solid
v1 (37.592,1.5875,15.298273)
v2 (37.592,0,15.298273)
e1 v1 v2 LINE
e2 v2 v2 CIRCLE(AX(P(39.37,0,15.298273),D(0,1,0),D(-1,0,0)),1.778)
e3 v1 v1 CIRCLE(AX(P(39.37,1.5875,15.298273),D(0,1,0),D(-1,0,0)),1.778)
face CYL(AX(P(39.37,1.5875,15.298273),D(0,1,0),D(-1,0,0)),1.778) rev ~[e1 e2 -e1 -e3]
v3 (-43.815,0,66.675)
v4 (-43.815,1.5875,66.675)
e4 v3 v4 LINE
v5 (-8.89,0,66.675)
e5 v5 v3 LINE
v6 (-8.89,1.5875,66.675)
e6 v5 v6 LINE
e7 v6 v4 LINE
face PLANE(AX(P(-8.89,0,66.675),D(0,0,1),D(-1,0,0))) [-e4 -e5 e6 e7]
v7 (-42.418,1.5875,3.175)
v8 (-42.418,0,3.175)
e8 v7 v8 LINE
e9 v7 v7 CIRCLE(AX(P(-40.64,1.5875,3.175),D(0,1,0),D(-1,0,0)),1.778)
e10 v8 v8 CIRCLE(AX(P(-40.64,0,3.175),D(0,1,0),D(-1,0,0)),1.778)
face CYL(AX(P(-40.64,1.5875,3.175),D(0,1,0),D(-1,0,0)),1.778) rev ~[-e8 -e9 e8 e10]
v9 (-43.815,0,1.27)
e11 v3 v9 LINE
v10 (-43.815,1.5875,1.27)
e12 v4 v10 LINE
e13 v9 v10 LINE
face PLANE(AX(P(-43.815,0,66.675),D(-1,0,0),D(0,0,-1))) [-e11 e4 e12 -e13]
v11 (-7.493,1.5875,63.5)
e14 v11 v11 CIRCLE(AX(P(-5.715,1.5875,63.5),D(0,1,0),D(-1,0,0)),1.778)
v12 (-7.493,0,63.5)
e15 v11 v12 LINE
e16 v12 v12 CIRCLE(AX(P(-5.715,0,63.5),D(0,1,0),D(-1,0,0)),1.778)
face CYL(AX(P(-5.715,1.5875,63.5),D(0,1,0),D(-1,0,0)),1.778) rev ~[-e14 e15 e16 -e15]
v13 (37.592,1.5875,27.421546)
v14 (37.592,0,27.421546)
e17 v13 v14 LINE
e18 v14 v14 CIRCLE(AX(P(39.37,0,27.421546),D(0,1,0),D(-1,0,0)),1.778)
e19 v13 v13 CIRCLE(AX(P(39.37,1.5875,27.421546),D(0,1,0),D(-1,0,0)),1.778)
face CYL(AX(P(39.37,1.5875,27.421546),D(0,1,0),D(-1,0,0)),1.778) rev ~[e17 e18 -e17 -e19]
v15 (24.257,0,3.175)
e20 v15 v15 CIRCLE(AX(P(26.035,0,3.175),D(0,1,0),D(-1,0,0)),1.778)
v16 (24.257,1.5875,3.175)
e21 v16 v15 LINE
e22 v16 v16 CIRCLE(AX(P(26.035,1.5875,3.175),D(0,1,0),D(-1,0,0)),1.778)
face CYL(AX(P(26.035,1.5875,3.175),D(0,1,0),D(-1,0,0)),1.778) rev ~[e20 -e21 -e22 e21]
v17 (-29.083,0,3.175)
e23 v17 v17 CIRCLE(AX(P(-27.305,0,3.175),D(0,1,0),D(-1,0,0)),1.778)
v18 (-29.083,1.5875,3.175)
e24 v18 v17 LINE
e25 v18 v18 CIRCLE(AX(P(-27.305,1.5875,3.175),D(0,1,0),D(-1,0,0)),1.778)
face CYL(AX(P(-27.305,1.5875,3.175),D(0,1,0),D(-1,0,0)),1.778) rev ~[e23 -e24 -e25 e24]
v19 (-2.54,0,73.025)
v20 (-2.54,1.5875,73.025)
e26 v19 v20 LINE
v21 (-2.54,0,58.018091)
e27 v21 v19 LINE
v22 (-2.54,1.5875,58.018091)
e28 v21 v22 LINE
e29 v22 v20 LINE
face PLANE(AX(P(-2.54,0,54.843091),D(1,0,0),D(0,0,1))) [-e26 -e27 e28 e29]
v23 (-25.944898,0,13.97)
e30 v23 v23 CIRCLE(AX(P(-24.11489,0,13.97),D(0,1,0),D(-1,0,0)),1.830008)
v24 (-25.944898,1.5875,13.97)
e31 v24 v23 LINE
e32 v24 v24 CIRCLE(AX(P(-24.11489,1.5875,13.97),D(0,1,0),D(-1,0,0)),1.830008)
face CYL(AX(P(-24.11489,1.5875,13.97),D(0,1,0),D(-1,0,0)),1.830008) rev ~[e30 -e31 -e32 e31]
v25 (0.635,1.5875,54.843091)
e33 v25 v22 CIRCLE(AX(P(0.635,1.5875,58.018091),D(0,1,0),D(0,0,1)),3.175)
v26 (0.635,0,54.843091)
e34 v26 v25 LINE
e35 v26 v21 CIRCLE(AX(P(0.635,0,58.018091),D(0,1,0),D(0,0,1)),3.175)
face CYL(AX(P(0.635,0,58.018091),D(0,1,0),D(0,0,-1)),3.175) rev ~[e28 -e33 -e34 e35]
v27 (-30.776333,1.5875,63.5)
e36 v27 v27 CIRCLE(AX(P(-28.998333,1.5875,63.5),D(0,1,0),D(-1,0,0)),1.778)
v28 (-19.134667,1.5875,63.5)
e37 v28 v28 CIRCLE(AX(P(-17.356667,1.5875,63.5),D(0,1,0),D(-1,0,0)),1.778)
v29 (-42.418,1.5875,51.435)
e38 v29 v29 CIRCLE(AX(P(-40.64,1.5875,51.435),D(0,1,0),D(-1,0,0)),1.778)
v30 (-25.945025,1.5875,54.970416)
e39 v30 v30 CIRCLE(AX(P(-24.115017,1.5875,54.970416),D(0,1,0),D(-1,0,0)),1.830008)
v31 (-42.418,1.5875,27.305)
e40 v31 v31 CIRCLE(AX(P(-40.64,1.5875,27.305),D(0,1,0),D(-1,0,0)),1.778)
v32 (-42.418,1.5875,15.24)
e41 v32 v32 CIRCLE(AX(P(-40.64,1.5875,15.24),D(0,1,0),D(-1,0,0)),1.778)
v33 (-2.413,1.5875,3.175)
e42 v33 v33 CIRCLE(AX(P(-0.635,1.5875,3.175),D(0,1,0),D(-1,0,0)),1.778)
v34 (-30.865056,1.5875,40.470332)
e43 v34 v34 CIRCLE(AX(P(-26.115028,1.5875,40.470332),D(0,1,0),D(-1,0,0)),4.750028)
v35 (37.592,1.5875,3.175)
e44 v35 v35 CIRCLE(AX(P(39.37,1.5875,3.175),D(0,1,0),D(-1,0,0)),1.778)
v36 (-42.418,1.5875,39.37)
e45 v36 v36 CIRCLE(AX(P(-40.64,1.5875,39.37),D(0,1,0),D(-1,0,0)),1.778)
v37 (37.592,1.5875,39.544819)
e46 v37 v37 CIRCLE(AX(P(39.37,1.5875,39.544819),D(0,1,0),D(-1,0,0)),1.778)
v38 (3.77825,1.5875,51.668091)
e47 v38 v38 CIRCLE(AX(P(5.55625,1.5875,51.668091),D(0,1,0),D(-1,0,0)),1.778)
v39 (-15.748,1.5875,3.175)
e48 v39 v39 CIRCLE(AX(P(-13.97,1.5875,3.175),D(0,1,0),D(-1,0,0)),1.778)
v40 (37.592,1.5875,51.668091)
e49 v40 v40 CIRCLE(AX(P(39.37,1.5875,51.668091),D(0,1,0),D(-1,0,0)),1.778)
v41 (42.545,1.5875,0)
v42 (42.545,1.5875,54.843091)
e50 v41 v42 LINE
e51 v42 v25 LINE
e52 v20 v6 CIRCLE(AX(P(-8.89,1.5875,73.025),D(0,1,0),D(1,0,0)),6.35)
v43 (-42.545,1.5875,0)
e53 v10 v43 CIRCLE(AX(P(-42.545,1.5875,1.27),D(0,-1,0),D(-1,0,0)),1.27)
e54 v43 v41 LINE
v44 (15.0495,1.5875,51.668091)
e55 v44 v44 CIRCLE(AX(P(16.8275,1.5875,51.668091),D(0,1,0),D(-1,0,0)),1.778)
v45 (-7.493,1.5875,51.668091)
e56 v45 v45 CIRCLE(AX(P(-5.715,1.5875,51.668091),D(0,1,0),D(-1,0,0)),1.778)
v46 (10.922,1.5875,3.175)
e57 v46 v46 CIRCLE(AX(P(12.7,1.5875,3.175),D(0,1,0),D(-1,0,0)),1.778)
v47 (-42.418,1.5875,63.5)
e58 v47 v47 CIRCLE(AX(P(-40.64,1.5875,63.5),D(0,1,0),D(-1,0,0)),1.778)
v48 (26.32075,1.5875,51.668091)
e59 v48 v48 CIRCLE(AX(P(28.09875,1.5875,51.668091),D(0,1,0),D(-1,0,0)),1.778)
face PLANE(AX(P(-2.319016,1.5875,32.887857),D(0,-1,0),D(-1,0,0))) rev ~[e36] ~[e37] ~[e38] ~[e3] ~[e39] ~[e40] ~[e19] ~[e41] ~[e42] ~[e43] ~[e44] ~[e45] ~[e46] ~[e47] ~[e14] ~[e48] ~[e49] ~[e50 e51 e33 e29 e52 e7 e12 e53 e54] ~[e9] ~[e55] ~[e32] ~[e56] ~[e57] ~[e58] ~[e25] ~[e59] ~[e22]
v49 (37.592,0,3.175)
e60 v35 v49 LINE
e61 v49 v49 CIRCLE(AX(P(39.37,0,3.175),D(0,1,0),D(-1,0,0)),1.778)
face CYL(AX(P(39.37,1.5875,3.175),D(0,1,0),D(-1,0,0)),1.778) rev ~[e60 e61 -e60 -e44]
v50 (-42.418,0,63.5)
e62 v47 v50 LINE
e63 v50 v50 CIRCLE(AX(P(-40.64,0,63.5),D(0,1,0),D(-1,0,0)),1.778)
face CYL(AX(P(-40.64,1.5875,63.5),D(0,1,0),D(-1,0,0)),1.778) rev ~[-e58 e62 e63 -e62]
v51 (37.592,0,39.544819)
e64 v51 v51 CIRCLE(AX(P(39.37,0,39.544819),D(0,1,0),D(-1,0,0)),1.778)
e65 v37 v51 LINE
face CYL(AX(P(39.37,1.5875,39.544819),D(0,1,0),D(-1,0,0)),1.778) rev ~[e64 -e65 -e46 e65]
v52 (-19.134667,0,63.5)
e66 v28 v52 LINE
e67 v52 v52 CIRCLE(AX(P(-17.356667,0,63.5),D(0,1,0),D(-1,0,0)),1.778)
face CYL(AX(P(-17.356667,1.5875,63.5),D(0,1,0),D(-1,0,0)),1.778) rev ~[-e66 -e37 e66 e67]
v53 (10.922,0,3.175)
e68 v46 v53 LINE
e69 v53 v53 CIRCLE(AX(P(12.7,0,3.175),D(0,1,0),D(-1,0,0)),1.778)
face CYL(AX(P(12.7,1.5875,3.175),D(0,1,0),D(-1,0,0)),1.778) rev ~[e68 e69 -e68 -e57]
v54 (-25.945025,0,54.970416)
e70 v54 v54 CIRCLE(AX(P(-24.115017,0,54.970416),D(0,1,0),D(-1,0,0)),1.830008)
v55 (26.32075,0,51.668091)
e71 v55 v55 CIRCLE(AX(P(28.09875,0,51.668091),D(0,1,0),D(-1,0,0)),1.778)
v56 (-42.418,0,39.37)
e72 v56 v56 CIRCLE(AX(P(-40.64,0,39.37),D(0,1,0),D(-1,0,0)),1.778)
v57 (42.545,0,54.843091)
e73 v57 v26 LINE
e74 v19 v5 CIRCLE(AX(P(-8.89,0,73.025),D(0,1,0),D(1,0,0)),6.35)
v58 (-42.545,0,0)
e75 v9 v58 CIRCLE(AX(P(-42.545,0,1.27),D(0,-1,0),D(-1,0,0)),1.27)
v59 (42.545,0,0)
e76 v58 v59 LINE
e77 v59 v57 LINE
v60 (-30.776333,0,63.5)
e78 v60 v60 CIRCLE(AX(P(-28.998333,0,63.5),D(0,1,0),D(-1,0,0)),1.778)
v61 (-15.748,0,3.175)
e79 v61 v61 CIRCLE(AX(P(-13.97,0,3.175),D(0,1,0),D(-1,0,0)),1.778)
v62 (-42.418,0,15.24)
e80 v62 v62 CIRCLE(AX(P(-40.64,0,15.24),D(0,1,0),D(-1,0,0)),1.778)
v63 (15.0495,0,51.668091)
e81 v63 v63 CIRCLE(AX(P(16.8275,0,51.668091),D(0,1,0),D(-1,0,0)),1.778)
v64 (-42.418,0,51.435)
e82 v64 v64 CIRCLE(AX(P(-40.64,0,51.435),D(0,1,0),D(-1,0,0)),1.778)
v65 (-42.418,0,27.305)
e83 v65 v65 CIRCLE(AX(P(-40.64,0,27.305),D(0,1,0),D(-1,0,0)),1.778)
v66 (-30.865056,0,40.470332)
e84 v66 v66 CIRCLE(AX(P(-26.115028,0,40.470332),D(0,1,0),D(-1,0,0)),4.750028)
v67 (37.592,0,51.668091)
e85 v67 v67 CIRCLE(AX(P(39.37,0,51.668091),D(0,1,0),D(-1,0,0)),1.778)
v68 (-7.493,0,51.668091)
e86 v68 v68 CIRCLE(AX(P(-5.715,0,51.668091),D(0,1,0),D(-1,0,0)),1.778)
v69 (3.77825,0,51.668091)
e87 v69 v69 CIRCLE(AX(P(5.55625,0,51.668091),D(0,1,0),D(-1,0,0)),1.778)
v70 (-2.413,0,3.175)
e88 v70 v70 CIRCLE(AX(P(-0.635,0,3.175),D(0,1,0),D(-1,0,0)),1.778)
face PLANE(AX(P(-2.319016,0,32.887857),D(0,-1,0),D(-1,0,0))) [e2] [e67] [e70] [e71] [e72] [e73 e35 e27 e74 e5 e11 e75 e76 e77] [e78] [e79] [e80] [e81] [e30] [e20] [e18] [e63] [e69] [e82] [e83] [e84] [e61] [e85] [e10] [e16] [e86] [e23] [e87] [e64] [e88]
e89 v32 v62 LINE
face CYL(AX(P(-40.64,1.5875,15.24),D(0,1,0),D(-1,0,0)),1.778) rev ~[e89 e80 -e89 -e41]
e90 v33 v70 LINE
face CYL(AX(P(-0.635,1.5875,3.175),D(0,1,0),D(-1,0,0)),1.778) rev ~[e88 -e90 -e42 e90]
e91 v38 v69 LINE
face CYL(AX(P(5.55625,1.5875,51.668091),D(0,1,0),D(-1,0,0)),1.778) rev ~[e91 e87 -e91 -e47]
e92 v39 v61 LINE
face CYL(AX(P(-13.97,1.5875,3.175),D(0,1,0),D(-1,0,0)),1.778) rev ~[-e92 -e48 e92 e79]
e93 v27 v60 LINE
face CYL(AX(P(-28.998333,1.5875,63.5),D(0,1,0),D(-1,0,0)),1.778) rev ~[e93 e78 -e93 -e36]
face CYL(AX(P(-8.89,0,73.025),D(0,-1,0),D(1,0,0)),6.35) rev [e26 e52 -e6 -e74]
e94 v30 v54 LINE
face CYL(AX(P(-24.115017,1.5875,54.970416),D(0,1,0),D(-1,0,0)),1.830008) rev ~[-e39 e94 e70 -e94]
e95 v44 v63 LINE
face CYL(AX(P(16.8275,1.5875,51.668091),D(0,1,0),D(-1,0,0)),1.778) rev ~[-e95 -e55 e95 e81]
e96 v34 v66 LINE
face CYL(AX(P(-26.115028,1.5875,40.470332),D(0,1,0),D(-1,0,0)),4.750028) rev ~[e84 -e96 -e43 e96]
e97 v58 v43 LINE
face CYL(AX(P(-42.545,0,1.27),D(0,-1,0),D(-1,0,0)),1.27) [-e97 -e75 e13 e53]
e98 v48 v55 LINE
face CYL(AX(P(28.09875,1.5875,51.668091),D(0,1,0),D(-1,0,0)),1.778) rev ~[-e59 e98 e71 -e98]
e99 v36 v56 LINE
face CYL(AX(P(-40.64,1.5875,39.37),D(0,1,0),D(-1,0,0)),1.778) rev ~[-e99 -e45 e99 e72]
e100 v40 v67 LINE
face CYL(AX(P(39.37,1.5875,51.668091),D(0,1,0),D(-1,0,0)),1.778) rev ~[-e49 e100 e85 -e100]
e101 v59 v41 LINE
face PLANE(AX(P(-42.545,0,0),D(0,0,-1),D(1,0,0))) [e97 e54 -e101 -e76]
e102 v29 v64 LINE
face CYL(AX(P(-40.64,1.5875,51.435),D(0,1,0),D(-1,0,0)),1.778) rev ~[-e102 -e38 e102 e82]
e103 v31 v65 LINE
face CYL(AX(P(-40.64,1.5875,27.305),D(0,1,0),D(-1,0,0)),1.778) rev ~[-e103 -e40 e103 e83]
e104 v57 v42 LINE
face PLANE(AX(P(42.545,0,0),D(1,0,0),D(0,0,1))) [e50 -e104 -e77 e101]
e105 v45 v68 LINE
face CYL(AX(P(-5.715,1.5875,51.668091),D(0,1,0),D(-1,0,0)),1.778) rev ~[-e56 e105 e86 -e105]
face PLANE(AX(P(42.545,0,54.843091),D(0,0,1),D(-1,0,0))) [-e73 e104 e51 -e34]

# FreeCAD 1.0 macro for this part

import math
import FreeCAD as App
import Part
import Sketcher
Q = App.Units.Quantity


def edges_at(feature, points):
    """Names of the edges that pass closest to the given points."""
    edges = feature.Shape.Edges
    near = lambda p: min(range(len(edges)), key=lambda i: edges[i].distToShape(Part.Vertex(*p))[0])
    return sorted({f"Edge{near(p) + 1}" for p in points})

doc = App.newDocument("Part")
body = doc.addObject("PartDesign::Body", "Body")

# Sketch on XZ plane
sketch1 = body.newObject("Sketcher::SketchObject", "Sketch")
sketch1.AttachmentSupport = (doc.getObject("XZ_Plane"), [""])
sketch1.MapMode = "FlatFace"
sketch1.addGeometry(Part.LineSegment(App.Vector(-43.815, 66.675, 0), App.Vector(-8.89, 66.675, 0)), False)
sketch1.addGeometry(Part.ArcOfCircle(Part.Circle(App.Vector(-8.89, 73.025, 0), App.Vector(0, 0, 1), 6.35), math.radians(-90), math.radians(0)), False)
sketch1.addGeometry(Part.LineSegment(App.Vector(-2.54, 73.025, 0), App.Vector(-2.54, 54.843091, 0)), False)
sketch1.addGeometry(Part.LineSegment(App.Vector(-2.54, 54.843091, 0), App.Vector(42.545, 54.843091, 0)), False)
sketch1.addGeometry(Part.LineSegment(App.Vector(42.545, 54.843091, 0), App.Vector(42.545, 0, 0)), False)
sketch1.addGeometry(Part.LineSegment(App.Vector(42.545, 0, 0), App.Vector(-42.545, 0, 0)), False)
sketch1.addGeometry(Part.ArcOfCircle(Part.Circle(App.Vector(-42.545, 1.27, 0), App.Vector(0, 0, 1), 1.27), math.radians(180), math.radians(270)), False)
sketch1.addGeometry(Part.LineSegment(App.Vector(-43.815, 1.27, 0), App.Vector(-43.815, 66.675, 0)), False)
sketch1.addConstraint(Sketcher.Constraint("Tangent", 0, 2, 1, 1))
sketch1.addConstraint(Sketcher.Constraint("Tangent", 1, 2, 2, 1))
sketch1.addConstraint(Sketcher.Constraint("Coincident", 2, 2, 3, 1))
sketch1.addConstraint(Sketcher.Constraint("Coincident", 3, 2, 4, 1))
sketch1.addConstraint(Sketcher.Constraint("Coincident", 4, 2, 5, 1))
sketch1.addConstraint(Sketcher.Constraint("Tangent", 5, 2, 6, 2))
sketch1.addConstraint(Sketcher.Constraint("Tangent", 6, 1, 7, 1))
sketch1.addConstraint(Sketcher.Constraint("Coincident", 7, 2, 0, 1))
sketch1.addConstraint(Sketcher.Constraint("Horizontal", 0))
sketch1.addConstraint(Sketcher.Constraint("Vertical", 2))
sketch1.addConstraint(Sketcher.Constraint("Horizontal", 3))
sketch1.addConstraint(Sketcher.Constraint("Vertical", 4))
sketch1.addConstraint(Sketcher.Constraint("Horizontal", 5))
sketch1.addConstraint(Sketcher.Constraint("Vertical", 7))
sketch1.addConstraint(Sketcher.Constraint("Symmetric", 4, 2, 5, 2, -1, 1))
sketch1.addConstraint(Sketcher.Constraint("Radius", 1, Q("0.25 in")))
sketch1.addConstraint(Sketcher.Constraint("Radius", 6, Q("0.05 in")))
sketch1.addConstraint(Sketcher.Constraint("DistanceX", 5, 2, 5, 1, Q("3.35 in")))
sketch1.addConstraint(Sketcher.Constraint("DistanceX", 1, 2, -1, 1, Q("0.1 in")))
sketch1.addConstraint(Sketcher.Constraint("DistanceY", 7, 1, 7, 2, Q("2.575 in")))
sketch1.addConstraint(Sketcher.Constraint("DistanceY", 2, 2, 2, 1, Q("18.181909 mm")))
pad1 = body.newObject("PartDesign::Pad", "Pad")
pad1.Profile = sketch1
pad1.Length = Q("0.0625 in")
pad1.Reversed = True
doc.recompute()

fillet = body.newObject("PartDesign::Fillet", "Fillet")
fillet.Base = (pad1, edges_at(pad1, [(-2.54, 0.794, 54.843)]))
fillet.Radius = Q("0.125 in")

# Sketch on XZ plane
sketch2 = body.newObject("Sketcher::SketchObject", "Sketch001")
sketch2.AttachmentSupport = (doc.getObject("XZ_Plane"), [""])
sketch2.MapMode = "FlatFace"
sketch2.AttachmentOffset = App.Placement(App.Vector(0, 0, -0.0625 * 25.4), App.Rotation())
sketch2.addGeometry(Part.Circle(App.Vector(-26.115028, 40.470332, 0), App.Vector(0, 0, 1), 4.750028), False)
sketch2.addGeometry(Part.Circle(App.Vector(-24.115017, 54.970416, 0), App.Vector(0, 0, 1), 1.830008), False)
sketch2.addGeometry(Part.Circle(App.Vector(-24.11489, 13.97, 0), App.Vector(0, 0, 1), 1.830008), False)
sketch2.addConstraint(Sketcher.Constraint("Equal", 1, 2))
sketch2.addConstraint(Sketcher.Constraint("DistanceY", -1, 1, 2, 3, Q("0.55 in")))
sketch2.addConstraint(Sketcher.Constraint("Diameter", 0, Q("9.500055 mm")))
sketch2.addConstraint(Sketcher.Constraint("Diameter", 1, Q("3.660016 mm")))
sketch2.addConstraint(Sketcher.Constraint("DistanceX", 0, 3, -1, 1, Q("26.115028 mm")))
sketch2.addConstraint(Sketcher.Constraint("DistanceY", -1, 1, 0, 3, Q("40.470332 mm")))
sketch2.addConstraint(Sketcher.Constraint("DistanceX", 2, 3, -1, 1, Q("24.11489 mm")))
sketch2.addConstraint(Sketcher.Constraint("DistanceX", 0, 3, 1, 3, Q("2.000012 mm")))
sketch2.addConstraint(Sketcher.Constraint("DistanceY", -1, 1, 1, 3, Q("54.970416 mm")))
pocket1 = body.newObject("PartDesign::Pocket", "Pocket")
pocket1.Profile = sketch2
pocket1.Type = "ThroughAll"
pocket1.Midplane = True

# Sketch on XZ plane
sketch3 = body.newObject("Sketcher::SketchObject", "Sketch002")
sketch3.AttachmentSupport = (doc.getObject("XZ_Plane"), [""])
sketch3.MapMode = "FlatFace"
sketch3.AttachmentOffset = App.Placement(App.Vector(0, 0, -0.0625 * 25.4), App.Rotation())
sketch3.addGeometry(Part.Circle(App.Vector(-27.305, 3.175, 0), App.Vector(0, 0, 1), 1.778), False)
sketch3.addGeometry(Part.Circle(App.Vector(-13.97, 3.175, 0), App.Vector(0, 0, 1), 1.778), False)
sketch3.addGeometry(Part.Circle(App.Vector(-0.635, 3.175, 0), App.Vector(0, 0, 1), 1.778), False)
sketch3.addGeometry(Part.Circle(App.Vector(12.7, 3.175, 0), App.Vector(0, 0, 1), 1.778), False)
sketch3.addGeometry(Part.Circle(App.Vector(26.035, 3.175, 0), App.Vector(0, 0, 1), 1.778), False)
sketch3.addGeometry(Part.Circle(App.Vector(39.37, 3.175, 0), App.Vector(0, 0, 1), 1.778), False)
sketch3.addGeometry(Part.Circle(App.Vector(39.37, 15.298273, 0), App.Vector(0, 0, 1), 1.778), False)
sketch3.addGeometry(Part.Circle(App.Vector(39.37, 27.421546, 0), App.Vector(0, 0, 1), 1.778), False)
sketch3.addGeometry(Part.Circle(App.Vector(39.37, 39.544819, 0), App.Vector(0, 0, 1), 1.778), False)
sketch3.addGeometry(Part.Circle(App.Vector(39.37, 51.668091, 0), App.Vector(0, 0, 1), 1.778), False)
sketch3.addGeometry(Part.Circle(App.Vector(28.09875, 51.668091, 0), App.Vector(0, 0, 1), 1.778), False)
sketch3.addGeometry(Part.Circle(App.Vector(16.8275, 51.668091, 0), App.Vector(0, 0, 1), 1.778), False)
sketch3.addGeometry(Part.Circle(App.Vector(5.55625, 51.668091, 0), App.Vector(0, 0, 1), 1.778), False)
sketch3.addGeometry(Part.Circle(App.Vector(-5.715, 51.668091, 0), App.Vector(0, 0, 1), 1.778), False)
sketch3.addGeometry(Part.Circle(App.Vector(-5.715, 63.5, 0), App.Vector(0, 0, 1), 1.778), False)
sketch3.addGeometry(Part.Circle(App.Vector(-17.356667, 63.5, 0), App.Vector(0, 0, 1), 1.778), False)
sketch3.addGeometry(Part.Circle(App.Vector(-28.998333, 63.5, 0), App.Vector(0, 0, 1), 1.778), False)
sketch3.addGeometry(Part.Circle(App.Vector(-40.64, 63.5, 0), App.Vector(0, 0, 1), 1.778), False)
sketch3.addGeometry(Part.Circle(App.Vector(-40.64, 51.435, 0), App.Vector(0, 0, 1), 1.778), False)
sketch3.addGeometry(Part.Circle(App.Vector(-40.64, 39.37, 0), App.Vector(0, 0, 1), 1.778), False)
sketch3.addGeometry(Part.Circle(App.Vector(-40.64, 27.305, 0), App.Vector(0, 0, 1), 1.778), False)
sketch3.addGeometry(Part.Circle(App.Vector(-40.64, 15.24, 0), App.Vector(0, 0, 1), 1.778), False)
sketch3.addGeometry(Part.Circle(App.Vector(-40.64, 3.175, 0), App.Vector(0, 0, 1), 1.778), False)
sketch3.addConstraint(Sketcher.Constraint("Equal", 0, 1))
sketch3.addConstraint(Sketcher.Constraint("Equal", 1, 2))
sketch3.addConstraint(Sketcher.Constraint("Equal", 2, 3))
sketch3.addConstraint(Sketcher.Constraint("Equal", 3, 4))
sketch3.addConstraint(Sketcher.Constraint("Equal", 4, 5))
sketch3.addConstraint(Sketcher.Constraint("Equal", 5, 6))
sketch3.addConstraint(Sketcher.Constraint("Equal", 6, 7))
sketch3.addConstraint(Sketcher.Constraint("Equal", 7, 8))
sketch3.addConstraint(Sketcher.Constraint("Equal", 8, 9))
sketch3.addConstraint(Sketcher.Constraint("Equal", 9, 10))
sketch3.addConstraint(Sketcher.Constraint("Equal", 10, 11))
sketch3.addConstraint(Sketcher.Constraint("Equal", 11, 12))
sketch3.addConstraint(Sketcher.Constraint("Equal", 12, 13))
sketch3.addConstraint(Sketcher.Constraint("Equal", 13, 14))
sketch3.addConstraint(Sketcher.Constraint("Equal", 14, 15))
sketch3.addConstraint(Sketcher.Constraint("Equal", 15, 16))
sketch3.addConstraint(Sketcher.Constraint("Equal", 16, 17))
sketch3.addConstraint(Sketcher.Constraint("Equal", 17, 18))
sketch3.addConstraint(Sketcher.Constraint("Equal", 18, 19))
sketch3.addConstraint(Sketcher.Constraint("Equal", 19, 20))
sketch3.addConstraint(Sketcher.Constraint("Equal", 20, 21))
sketch3.addConstraint(Sketcher.Constraint("Equal", 21, 22))
sketch3.addConstraint(Sketcher.Constraint("Horizontal", 0, 3, 1, 3))
sketch3.addConstraint(Sketcher.Constraint("Horizontal", 1, 3, 2, 3))
sketch3.addConstraint(Sketcher.Constraint("Horizontal", 2, 3, 3, 3))
sketch3.addConstraint(Sketcher.Constraint("Horizontal", 3, 3, 4, 3))
sketch3.addConstraint(Sketcher.Constraint("Horizontal", 4, 3, 5, 3))
sketch3.addConstraint(Sketcher.Constraint("Horizontal", 9, 3, 10, 3))
sketch3.addConstraint(Sketcher.Constraint("Horizontal", 10, 3, 11, 3))
sketch3.addConstraint(Sketcher.Constraint("Horizontal", 11, 3, 12, 3))
sketch3.addConstraint(Sketcher.Constraint("Horizontal", 12, 3, 13, 3))
sketch3.addConstraint(Sketcher.Constraint("Horizontal", 14, 3, 15, 3))
sketch3.addConstraint(Sketcher.Constraint("Horizontal", 15, 3, 16, 3))
sketch3.addConstraint(Sketcher.Constraint("Horizontal", 16, 3, 17, 3))
sketch3.addConstraint(Sketcher.Constraint("Horizontal", 5, 3, 22, 3))
sketch3.addConstraint(Sketcher.Constraint("Vertical", 5, 3, 6, 3))
sketch3.addConstraint(Sketcher.Constraint("Vertical", 6, 3, 7, 3))
sketch3.addConstraint(Sketcher.Constraint("Vertical", 7, 3, 8, 3))
sketch3.addConstraint(Sketcher.Constraint("Vertical", 8, 3, 9, 3))
sketch3.addConstraint(Sketcher.Constraint("Vertical", 13, 3, 14, 3))
sketch3.addConstraint(Sketcher.Constraint("Vertical", 17, 3, 18, 3))
sketch3.addConstraint(Sketcher.Constraint("Vertical", 18, 3, 19, 3))
sketch3.addConstraint(Sketcher.Constraint("Vertical", 19, 3, 20, 3))
sketch3.addConstraint(Sketcher.Constraint("Vertical", 20, 3, 21, 3))
sketch3.addConstraint(Sketcher.Constraint("Vertical", 21, 3, 22, 3))
sketch3.addConstraint(Sketcher.Constraint("Diameter", 0, Q("0.14 in")))
sketch3.addConstraint(Sketcher.Constraint("DistanceX", -1, 1, 3, 3, Q("0.5 in")))
sketch3.addConstraint(Sketcher.Constraint("DistanceY", -1, 1, 14, 3, Q("2.5 in")))
sketch3.addConstraint(Sketcher.Constraint("DistanceX", 17, 3, -1, 1, Q("1.6 in")))
sketch3.addConstraint(Sketcher.Constraint("DistanceY", -1, 1, 21, 3, Q("0.6 in")))
sketch3.addConstraint(Sketcher.Constraint("DistanceX", 0, 3, 4, 3, Q("2.1 in")))
sketch3.addConstraint(Sketcher.Constraint("DistanceX", 1, 3, 5, 3, Q("2.1 in")))
sketch3.addConstraint(Sketcher.Constraint("DistanceX", 1, 3, -1, 1, Q("0.55 in")))
sketch3.addConstraint(Sketcher.Constraint("DistanceY", -1, 1, 19, 3, Q("1.55 in")))
sketch3.addConstraint(Sketcher.Constraint("DistanceX", 0, 3, 2, 3, Q("1.05 in")))
sketch3.addConstraint(Sketcher.Constraint("DistanceY", 20, 3, 18, 3, Q("0.95 in")))
sketch3.addConstraint(Sketcher.Constraint("DistanceY", 0, 3, 20, 3, Q("0.95 in")))
sketch3.addConstraint(Sketcher.Constraint("DistanceX", 0, 3, -1, 1, Q("1.075 in")))
sketch3.addConstraint(Sketcher.Constraint("DistanceY", -1, 1, 0, 3, Q("0.125 in")))
sketch3.addConstraint(Sketcher.Constraint("DistanceX", -1, 1, 12, 3, Q("0.21875 in")))
sketch3.addConstraint(Sketcher.Constraint("DistanceX", 13, 3, -1, 1, Q("0.225 in")))
sketch3.addConstraint(Sketcher.Constraint("DistanceX", -1, 1, 11, 3, Q("0.6625 in")))
sketch3.addConstraint(Sketcher.Constraint("DistanceX", 12, 3, 10, 3, Q("0.8875 in")))
sketch3.addConstraint(Sketcher.Constraint("DistanceY", -1, 1, 8, 3, Q("39.544819 mm")))
sketch3.addConstraint(Sketcher.Constraint("DistanceY", -1, 1, 9, 3, Q("51.668091 mm")))
sketch3.addConstraint(Sketcher.Constraint("DistanceY", 6, 3, 9, 3, Q("36.369819 mm")))
sketch3.addConstraint(Sketcher.Constraint("DistanceY", -1, 1, 7, 3, Q("27.421546 mm")))
sketch3.addConstraint(Sketcher.Constraint("DistanceX", 15, 3, -1, 1, Q("17.356667 mm")))
sketch3.addConstraint(Sketcher.Constraint("DistanceX", 16, 3, -1, 1, Q("28.998333 mm")))
pocket2 = body.newObject("PartDesign::Pocket", "Pocket001")
pocket2.Profile = sketch3
pocket2.Type = "ThroughAll"
pocket2.Midplane = True

doc.recompute()
